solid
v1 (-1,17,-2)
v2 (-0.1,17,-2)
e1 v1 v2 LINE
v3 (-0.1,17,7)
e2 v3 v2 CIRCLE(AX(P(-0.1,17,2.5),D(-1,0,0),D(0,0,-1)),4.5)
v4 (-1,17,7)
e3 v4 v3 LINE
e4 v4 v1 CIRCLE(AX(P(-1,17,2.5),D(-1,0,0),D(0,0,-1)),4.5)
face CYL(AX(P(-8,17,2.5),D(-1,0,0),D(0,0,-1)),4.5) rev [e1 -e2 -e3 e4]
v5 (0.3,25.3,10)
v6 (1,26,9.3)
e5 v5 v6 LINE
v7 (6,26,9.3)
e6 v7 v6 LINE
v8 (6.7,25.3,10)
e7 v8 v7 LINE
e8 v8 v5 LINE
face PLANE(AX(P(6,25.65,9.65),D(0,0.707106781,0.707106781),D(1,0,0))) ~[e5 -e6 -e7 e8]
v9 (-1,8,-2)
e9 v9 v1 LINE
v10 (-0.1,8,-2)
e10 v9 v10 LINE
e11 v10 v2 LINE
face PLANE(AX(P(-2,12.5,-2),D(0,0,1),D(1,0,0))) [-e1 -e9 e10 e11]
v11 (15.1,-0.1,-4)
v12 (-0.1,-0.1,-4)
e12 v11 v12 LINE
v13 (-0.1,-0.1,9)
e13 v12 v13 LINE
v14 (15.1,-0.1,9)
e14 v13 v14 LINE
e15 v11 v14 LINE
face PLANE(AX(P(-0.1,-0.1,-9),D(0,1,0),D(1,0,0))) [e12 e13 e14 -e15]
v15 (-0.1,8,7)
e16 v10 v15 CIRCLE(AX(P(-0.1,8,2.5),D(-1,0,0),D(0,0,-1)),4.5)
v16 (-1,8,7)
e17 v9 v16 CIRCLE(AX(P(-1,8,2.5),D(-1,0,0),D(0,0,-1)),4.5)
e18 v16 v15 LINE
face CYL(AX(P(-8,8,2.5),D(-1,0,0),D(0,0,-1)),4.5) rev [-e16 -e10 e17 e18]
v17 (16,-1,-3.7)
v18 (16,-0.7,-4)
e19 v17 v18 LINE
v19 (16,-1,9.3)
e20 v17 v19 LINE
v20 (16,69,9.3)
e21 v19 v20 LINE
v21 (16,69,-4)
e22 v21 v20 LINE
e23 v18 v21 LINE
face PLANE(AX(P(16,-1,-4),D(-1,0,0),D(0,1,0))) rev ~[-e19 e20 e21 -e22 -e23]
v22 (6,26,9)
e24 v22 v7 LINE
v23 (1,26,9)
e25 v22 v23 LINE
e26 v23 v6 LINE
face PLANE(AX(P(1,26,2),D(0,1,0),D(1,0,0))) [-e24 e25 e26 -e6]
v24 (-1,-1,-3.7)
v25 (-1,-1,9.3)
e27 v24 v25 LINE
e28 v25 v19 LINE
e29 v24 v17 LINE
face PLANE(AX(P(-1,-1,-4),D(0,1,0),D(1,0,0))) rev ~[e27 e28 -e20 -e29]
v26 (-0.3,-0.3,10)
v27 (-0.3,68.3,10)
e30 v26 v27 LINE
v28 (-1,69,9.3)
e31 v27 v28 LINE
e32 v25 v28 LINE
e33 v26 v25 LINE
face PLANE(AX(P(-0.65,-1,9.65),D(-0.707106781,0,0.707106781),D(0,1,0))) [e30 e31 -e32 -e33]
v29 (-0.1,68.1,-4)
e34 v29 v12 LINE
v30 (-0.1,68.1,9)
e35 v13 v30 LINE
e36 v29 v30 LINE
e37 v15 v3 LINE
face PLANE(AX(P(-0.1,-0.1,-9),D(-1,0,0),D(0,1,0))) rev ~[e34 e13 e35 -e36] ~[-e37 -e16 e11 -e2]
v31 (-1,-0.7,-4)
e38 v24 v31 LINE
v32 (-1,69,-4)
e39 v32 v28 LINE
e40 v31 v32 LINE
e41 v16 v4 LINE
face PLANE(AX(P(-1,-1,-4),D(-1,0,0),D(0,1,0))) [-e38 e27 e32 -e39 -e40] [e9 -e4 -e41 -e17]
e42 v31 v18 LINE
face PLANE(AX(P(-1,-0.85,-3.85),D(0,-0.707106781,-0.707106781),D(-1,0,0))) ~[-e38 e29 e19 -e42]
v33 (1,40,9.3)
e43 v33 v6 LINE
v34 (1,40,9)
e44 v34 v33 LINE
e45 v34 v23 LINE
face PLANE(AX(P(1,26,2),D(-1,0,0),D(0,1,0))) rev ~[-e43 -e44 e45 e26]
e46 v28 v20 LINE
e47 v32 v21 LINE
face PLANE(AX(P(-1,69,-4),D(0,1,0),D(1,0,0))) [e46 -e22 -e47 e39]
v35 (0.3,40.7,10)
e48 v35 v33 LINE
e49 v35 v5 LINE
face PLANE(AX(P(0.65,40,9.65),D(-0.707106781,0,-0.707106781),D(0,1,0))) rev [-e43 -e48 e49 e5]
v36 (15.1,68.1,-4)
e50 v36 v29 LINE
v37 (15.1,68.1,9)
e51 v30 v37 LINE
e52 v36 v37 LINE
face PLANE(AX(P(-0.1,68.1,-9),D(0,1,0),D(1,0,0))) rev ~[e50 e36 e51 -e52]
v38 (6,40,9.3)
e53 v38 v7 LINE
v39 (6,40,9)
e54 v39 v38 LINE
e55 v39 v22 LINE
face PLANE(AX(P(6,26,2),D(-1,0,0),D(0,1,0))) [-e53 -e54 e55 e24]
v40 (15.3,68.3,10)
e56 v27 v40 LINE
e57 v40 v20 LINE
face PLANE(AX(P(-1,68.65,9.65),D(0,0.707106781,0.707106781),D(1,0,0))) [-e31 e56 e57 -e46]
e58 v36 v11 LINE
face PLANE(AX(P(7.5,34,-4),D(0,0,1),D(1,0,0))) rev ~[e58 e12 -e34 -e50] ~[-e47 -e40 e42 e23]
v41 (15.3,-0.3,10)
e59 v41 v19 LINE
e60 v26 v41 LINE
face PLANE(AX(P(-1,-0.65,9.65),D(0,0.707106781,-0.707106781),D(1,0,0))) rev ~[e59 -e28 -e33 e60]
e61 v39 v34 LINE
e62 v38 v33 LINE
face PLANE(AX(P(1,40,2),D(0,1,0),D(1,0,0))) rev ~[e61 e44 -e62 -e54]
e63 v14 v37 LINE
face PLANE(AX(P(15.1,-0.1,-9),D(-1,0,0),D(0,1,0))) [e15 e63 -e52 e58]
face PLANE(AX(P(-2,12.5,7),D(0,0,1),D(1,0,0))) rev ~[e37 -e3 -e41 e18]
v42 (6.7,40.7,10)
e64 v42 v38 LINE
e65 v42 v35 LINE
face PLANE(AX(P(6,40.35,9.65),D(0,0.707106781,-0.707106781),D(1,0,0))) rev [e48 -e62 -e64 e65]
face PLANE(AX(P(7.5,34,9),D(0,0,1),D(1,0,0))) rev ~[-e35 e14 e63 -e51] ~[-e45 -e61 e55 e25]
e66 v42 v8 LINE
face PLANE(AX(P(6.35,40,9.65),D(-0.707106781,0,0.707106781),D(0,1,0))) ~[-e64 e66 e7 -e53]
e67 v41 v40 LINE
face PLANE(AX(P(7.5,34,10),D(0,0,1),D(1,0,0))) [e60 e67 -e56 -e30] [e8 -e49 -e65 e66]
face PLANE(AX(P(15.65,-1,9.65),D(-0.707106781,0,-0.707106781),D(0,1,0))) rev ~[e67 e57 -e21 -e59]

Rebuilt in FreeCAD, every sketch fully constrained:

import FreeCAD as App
import Part
import Sketcher


def edges_at(feature, points):
    """Names of the edges that pass closest to the given points."""
    edges = feature.Shape.Edges
    near = lambda p: min(range(len(edges)), key=lambda i: edges[i].distToShape(Part.Vertex(*p))[0])
    return sorted({f"Edge{near(p) + 1}" for p in points})

doc = App.newDocument("Part")
body = doc.addObject("PartDesign::Body", "Body")

sketch1 = body.newObject("Sketcher::SketchObject", "Sketch")
sketch1.AttachmentSupport = (doc.getObject("XY_Plane"), [""])
sketch1.MapMode = "FlatFace"
sketch1.AttachmentOffset = App.Placement(App.Vector(0, 0, -2), App.Rotation())
sketch1.addGeometry([
    Part.LineSegment(App.Vector(-8, 17, 0), App.Vector(-8, 8, 0)),
    Part.LineSegment(App.Vector(-8, 8, 0), App.Vector(4, 8, 0)),
    Part.LineSegment(App.Vector(4, 8, 0), App.Vector(4, 17, 0)),
    Part.LineSegment(App.Vector(4, 17, 0), App.Vector(-8, 17, 0)),
], False)
sketch1.addConstraint([
    Sketcher.Constraint("Coincident", 0, 2, 1, 1),
    Sketcher.Constraint("Coincident", 1, 2, 2, 1),
    Sketcher.Constraint("Coincident", 2, 2, 3, 1),
    Sketcher.Constraint("Coincident", 3, 2, 0, 1),
    Sketcher.Constraint("Vertical", 0),
    Sketcher.Constraint("Horizontal", 1),
    Sketcher.Constraint("Vertical", 2),
    Sketcher.Constraint("Horizontal", 3),
    Sketcher.Constraint("DistanceX", 1, 1, 1, 2, 12.0),
    Sketcher.Constraint("DistanceY", 0, 2, 0, 1, 9.0),
    Sketcher.Constraint("DistanceX", 0, 2, -1, 1, 8.0),
    Sketcher.Constraint("DistanceY", -1, 1, 0, 2, 8.0),
])
pad1 = body.newObject("PartDesign::Pad", "Pad")
pad1.Profile = sketch1
pad1.Length = 9
body2 = doc.addObject("PartDesign::Body", "Body001")

sketch2 = body2.newObject("Sketcher::SketchObject", "Sketch001")
sketch2.AttachmentSupport = (doc.getObject("YZ_Plane001"), [""])
sketch2.MapMode = "FlatFace"
sketch2.AttachmentOffset = App.Placement(App.Vector(0, 0, -8), App.Rotation())
sketch2.addGeometry(Part.Circle(App.Vector(8, 2.5, 0), App.Vector(0, 0, 1), 4.5), False)
sketch2.addConstraint([
    Sketcher.Constraint("Diameter", 0, 9.0),
    Sketcher.Constraint("DistanceX", -1, 1, 0, 3, 8.0),
    Sketcher.Constraint("DistanceY", -1, 1, 0, 3, 2.5),
])
pad2 = body2.newObject("PartDesign::Pad", "Pad001")
pad2.Profile = sketch2
pad2.Length = 12
body3 = doc.addObject("PartDesign::Body", "Body002")
body3.AllowCompound = True

sketch3 = body3.newObject("Sketcher::SketchObject", "Sketch002")
sketch3.AttachmentSupport = (doc.getObject("YZ_Plane002"), [""])
sketch3.MapMode = "FlatFace"
sketch3.AttachmentOffset = App.Placement(App.Vector(0, 0, -8), App.Rotation())
sketch3.addGeometry(Part.Circle(App.Vector(17, 2.5, 0), App.Vector(0, 0, 1), 4.5), False)
sketch3.addConstraint([
    Sketcher.Constraint("Diameter", 0, 9.0),
    Sketcher.Constraint("DistanceX", -1, 1, 0, 3, 17.0),
    Sketcher.Constraint("DistanceY", -1, 1, 0, 3, 2.5),
])
pad3 = body3.newObject("PartDesign::Pad", "Pad002")
pad3.Profile = sketch3
pad3.Length = 12
doc.recompute()

boolean = body3.newObject("PartDesign::Boolean", "Boolean")
boolean.Type = "Fuse"
boolean.addObjects([body2])
body4 = doc.addObject("PartDesign::Body", "Body003")

sketch4 = body4.newObject("Sketcher::SketchObject", "Sketch003")
sketch4.AttachmentSupport = (doc.getObject("XY_Plane003"), [""])
sketch4.MapMode = "FlatFace"
sketch4.AttachmentOffset = App.Placement(App.Vector(0, 0, 2), App.Rotation())
sketch4.addGeometry([
    Part.LineSegment(App.Vector(1, 40, 0), App.Vector(1, 26, 0)),
    Part.LineSegment(App.Vector(1, 26, 0), App.Vector(6, 26, 0)),
    Part.LineSegment(App.Vector(6, 26, 0), App.Vector(6, 40, 0)),
    Part.LineSegment(App.Vector(6, 40, 0), App.Vector(1, 40, 0)),
], False)
sketch4.addConstraint([
    Sketcher.Constraint("Coincident", 0, 2, 1, 1),
    Sketcher.Constraint("Coincident", 1, 2, 2, 1),
    Sketcher.Constraint("Coincident", 2, 2, 3, 1),
    Sketcher.Constraint("Coincident", 3, 2, 0, 1),
    Sketcher.Constraint("Vertical", 0),
    Sketcher.Constraint("Horizontal", 1),
    Sketcher.Constraint("Vertical", 2),
    Sketcher.Constraint("Horizontal", 3),
    Sketcher.Constraint("DistanceX", 1, 1, 1, 2, 5.0),
    Sketcher.Constraint("DistanceY", 0, 2, 0, 1, 14.0),
    Sketcher.Constraint("DistanceX", -1, 1, 0, 2, 1.0),
    Sketcher.Constraint("DistanceY", -1, 1, 0, 2, 26.0),
])
pad4 = body4.newObject("PartDesign::Pad", "Pad003")
pad4.Profile = sketch4
pad4.Length = 11
body5 = doc.addObject("PartDesign::Body", "Body004")

sketch5 = body5.newObject("Sketcher::SketchObject", "Sketch004")
sketch5.AttachmentSupport = (doc.getObject("XY_Plane004"), [""])
sketch5.MapMode = "FlatFace"
sketch5.AttachmentOffset = App.Placement(App.Vector(0, 0, -9), App.Rotation())
sketch5.addGeometry([
    Part.LineSegment(App.Vector(0, 68, 0), App.Vector(0, 0, 0)),
    Part.LineSegment(App.Vector(0, 0, 0), App.Vector(15, 0, 0)),
    Part.LineSegment(App.Vector(15, 0, 0), App.Vector(15, 68, 0)),
    Part.LineSegment(App.Vector(15, 68, 0), App.Vector(0, 68, 0)),
], False)
sketch5.addConstraint([
    Sketcher.Constraint("Coincident", 0, 2, 1, 1),
    Sketcher.Constraint("Coincident", 1, 2, 2, 1),
    Sketcher.Constraint("Coincident", 2, 2, 3, 1),
    Sketcher.Constraint("Coincident", 3, 2, 0, 1),
    Sketcher.Constraint("Vertical", 0),
    Sketcher.Constraint("Horizontal", 1),
    Sketcher.Constraint("Vertical", 2),
    Sketcher.Constraint("Horizontal", 3),
    Sketcher.Constraint("DistanceX", 1, 1, 1, 2, 15.2),
    Sketcher.Constraint("DistanceY", 0, 2, 0, 1, 68.2),
    Sketcher.Constraint("DistanceX", 0, 2, -1, 1, 0.1),
    Sketcher.Constraint("DistanceY", 0, 2, -1, 1, 0.1),
])
pad5 = body5.newObject("PartDesign::Pad", "Pad004")
pad5.Profile = sketch5
pad5.Length = 18
body6 = doc.addObject("PartDesign::Body", "Body005")

sketch6 = body6.newObject("Sketcher::SketchObject", "Sketch005")
sketch6.AttachmentSupport = (doc.getObject("XY_Plane005"), [""])
sketch6.MapMode = "FlatFace"
sketch6.AttachmentOffset = App.Placement(App.Vector(0, 0, -4), App.Rotation())
sketch6.addGeometry([
    Part.LineSegment(App.Vector(-1, 69, 0), App.Vector(-1, -1, 0)),
    Part.LineSegment(App.Vector(-1, -1, 0), App.Vector(16, -1, 0)),
    Part.LineSegment(App.Vector(16, -1, 0), App.Vector(16, 69, 0)),
    Part.LineSegment(App.Vector(16, 69, 0), App.Vector(-1, 69, 0)),
], False)
sketch6.addConstraint([
    Sketcher.Constraint("Coincident", 0, 2, 1, 1),
    Sketcher.Constraint("Coincident", 1, 2, 2, 1),
    Sketcher.Constraint("Coincident", 2, 2, 3, 1),
    Sketcher.Constraint("Coincident", 3, 2, 0, 1),
    Sketcher.Constraint("Vertical", 0),
    Sketcher.Constraint("Horizontal", 1),
    Sketcher.Constraint("Vertical", 2),
    Sketcher.Constraint("Horizontal", 3),
    Sketcher.Constraint("DistanceX", 1, 1, 1, 2, 17.0),
    Sketcher.Constraint("DistanceY", 0, 2, 0, 1, 70.0),
    Sketcher.Constraint("DistanceX", 0, 2, -1, 1, 1.0),
    Sketcher.Constraint("DistanceY", 0, 2, -1, 1, 1.0),
])
pad6 = body6.newObject("PartDesign::Pad", "Pad005")
pad6.Profile = sketch6
pad6.Length = 14
doc.recompute()

boolean2 = body6.newObject("PartDesign::Boolean", "Boolean001")
boolean2.Type = "Cut"
boolean2.addObjects([body5])
doc.recompute()

boolean3 = body6.newObject("PartDesign::Boolean", "Boolean002")
boolean3.Type = "Cut"
boolean3.addObjects([body4])
doc.recompute()

chamfer = body6.newObject("PartDesign::Chamfer", "Chamfer")
chamfer.Base = (boolean3, edges_at(boolean3, [
    (3.5, 26, 10),
    (6, 33, 10),
    (3.5, 40, 10),
    (1, 33, 10),
]))
chamfer.Size = 0.7
doc.recompute()

chamfer2 = body6.newObject("PartDesign::Chamfer", "Chamfer001")
chamfer2.Base = (chamfer, edges_at(chamfer, [
    (-1, 34, 10),
    (7.5, -1, 10),
    (16, 34, 10),
    (7.5, 69, 10),
]))
chamfer2.Size = 0.7
doc.recompute()

boolean4 = body6.newObject("PartDesign::Boolean", "Boolean003")
boolean4.Type = "Cut"
boolean4.addObjects([body3])
doc.recompute()

boolean5 = body6.newObject("PartDesign::Boolean", "Boolean004")
boolean5.Type = "Cut"
boolean5.addObjects([body])
doc.recompute()

chamfer3 = body6.newObject("PartDesign::Chamfer", "Chamfer002")
chamfer3.Base = (boolean5, edges_at(boolean5, [(7.5, -1, -4)]))
chamfer3.Size = 0.3

doc.recompute()
